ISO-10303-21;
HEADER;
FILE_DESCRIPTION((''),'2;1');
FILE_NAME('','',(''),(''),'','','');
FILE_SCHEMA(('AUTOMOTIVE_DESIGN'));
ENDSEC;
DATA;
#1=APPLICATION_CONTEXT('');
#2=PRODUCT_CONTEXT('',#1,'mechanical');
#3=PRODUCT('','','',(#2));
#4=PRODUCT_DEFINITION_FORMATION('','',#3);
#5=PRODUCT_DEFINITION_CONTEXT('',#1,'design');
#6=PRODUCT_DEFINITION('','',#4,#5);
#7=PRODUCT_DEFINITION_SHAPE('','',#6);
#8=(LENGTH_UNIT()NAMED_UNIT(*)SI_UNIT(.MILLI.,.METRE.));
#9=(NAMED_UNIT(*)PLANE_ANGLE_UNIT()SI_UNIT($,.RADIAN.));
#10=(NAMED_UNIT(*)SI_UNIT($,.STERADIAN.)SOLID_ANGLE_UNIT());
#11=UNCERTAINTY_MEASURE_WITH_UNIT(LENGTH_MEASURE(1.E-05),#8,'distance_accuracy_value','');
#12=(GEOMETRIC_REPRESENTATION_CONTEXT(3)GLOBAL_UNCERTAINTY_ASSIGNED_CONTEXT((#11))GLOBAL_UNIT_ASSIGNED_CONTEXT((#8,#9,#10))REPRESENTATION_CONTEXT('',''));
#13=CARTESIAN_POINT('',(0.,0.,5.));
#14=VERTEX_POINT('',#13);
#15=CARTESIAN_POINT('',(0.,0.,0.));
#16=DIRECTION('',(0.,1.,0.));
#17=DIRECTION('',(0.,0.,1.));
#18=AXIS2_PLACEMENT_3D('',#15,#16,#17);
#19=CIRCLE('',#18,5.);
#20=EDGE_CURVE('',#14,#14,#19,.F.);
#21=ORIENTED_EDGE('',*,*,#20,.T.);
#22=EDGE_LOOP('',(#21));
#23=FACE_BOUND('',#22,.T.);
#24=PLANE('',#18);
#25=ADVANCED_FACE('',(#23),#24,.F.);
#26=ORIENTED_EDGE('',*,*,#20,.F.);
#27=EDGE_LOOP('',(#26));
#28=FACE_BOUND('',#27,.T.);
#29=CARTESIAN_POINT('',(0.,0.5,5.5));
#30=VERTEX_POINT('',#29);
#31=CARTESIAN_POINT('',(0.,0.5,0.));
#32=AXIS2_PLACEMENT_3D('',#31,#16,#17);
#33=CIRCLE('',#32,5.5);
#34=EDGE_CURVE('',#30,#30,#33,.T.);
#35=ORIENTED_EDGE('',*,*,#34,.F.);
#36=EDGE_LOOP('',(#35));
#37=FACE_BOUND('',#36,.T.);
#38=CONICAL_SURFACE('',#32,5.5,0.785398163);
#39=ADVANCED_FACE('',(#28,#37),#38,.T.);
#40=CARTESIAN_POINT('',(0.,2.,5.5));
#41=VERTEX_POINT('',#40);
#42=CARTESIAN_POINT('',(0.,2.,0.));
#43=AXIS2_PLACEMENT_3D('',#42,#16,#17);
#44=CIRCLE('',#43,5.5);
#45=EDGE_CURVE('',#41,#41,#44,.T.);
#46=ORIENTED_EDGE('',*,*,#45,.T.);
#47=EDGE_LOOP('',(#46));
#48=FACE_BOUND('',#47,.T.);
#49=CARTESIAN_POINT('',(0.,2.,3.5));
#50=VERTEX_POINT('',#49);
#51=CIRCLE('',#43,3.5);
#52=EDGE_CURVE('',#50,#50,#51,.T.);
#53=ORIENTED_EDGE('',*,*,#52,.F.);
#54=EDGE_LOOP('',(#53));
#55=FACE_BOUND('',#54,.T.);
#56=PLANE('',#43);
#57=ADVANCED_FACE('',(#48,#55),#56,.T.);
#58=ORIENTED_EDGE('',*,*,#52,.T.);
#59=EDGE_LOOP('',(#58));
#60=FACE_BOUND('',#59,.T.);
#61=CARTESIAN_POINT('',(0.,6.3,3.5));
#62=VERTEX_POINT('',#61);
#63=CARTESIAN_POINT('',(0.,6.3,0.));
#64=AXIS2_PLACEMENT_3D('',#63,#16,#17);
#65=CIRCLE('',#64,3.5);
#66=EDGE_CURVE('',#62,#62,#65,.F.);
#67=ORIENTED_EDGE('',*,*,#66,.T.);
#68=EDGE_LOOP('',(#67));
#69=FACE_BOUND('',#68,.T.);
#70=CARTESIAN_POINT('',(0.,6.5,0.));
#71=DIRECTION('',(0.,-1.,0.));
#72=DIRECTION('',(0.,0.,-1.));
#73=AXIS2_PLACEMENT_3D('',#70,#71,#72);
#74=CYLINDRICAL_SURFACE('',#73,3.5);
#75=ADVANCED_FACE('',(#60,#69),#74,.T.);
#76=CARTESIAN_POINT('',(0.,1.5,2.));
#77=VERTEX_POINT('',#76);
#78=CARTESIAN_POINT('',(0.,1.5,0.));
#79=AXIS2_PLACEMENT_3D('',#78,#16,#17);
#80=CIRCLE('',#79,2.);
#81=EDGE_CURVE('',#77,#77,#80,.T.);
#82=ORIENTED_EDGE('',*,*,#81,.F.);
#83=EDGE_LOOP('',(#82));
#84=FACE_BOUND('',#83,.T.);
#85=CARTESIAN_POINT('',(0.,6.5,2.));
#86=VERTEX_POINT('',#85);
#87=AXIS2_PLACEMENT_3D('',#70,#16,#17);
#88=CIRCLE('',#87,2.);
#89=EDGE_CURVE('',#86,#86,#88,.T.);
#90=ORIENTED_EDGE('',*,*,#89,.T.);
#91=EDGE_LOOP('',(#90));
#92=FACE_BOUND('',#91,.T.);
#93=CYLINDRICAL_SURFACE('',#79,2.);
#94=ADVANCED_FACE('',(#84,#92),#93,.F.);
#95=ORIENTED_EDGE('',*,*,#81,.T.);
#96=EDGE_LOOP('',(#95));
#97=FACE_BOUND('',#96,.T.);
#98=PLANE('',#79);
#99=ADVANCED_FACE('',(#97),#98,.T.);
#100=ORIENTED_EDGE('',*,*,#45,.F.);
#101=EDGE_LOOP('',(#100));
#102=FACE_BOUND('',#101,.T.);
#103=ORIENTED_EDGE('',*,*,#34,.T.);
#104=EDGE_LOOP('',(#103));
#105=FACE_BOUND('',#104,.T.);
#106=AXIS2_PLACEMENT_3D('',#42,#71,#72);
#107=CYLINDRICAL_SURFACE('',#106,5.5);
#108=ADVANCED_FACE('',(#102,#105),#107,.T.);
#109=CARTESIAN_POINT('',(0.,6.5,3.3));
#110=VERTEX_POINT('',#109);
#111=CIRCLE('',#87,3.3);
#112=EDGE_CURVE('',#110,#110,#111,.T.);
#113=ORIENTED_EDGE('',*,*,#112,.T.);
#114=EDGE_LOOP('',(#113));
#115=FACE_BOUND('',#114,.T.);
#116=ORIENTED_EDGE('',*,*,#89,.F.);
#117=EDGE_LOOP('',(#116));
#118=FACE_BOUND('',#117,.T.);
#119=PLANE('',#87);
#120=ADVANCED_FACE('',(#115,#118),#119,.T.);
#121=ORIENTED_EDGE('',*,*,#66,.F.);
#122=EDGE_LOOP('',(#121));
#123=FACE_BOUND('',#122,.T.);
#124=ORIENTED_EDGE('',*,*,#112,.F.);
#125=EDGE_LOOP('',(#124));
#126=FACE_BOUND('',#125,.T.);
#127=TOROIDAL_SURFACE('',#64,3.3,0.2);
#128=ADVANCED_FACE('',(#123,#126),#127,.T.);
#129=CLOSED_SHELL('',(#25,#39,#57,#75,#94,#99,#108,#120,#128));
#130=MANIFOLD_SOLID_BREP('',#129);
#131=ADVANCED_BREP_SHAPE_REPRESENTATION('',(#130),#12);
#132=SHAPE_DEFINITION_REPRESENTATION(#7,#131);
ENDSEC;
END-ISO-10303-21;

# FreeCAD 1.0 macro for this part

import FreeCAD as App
import Part
import Sketcher


def edges_at(feature, points):
    """Names of the edges that pass closest to the given points."""
    edges = feature.Shape.Edges
    near = lambda p: min(range(len(edges)), key=lambda i: edges[i].distToShape(Part.Vertex(*p))[0])
    return sorted({f"Edge{near(p) + 1}" for p in points})

doc = App.newDocument("Part")
body = doc.addObject("PartDesign::Body", "Body")

sketch1 = body.newObject("Sketcher::SketchObject", "Sketch")
sketch1.AttachmentSupport = (doc.getObject("XZ_Plane"), [""])
sketch1.MapMode = "FlatFace"
sketch1.addGeometry(Part.Circle(App.Vector(0, 0, 0), App.Vector(0, 0, 1), 5.5), False)
sketch1.addConstraint(Sketcher.Constraint("Coincident", 0, 3, -1, 1))
sketch1.addConstraint(Sketcher.Constraint("Diameter", 0, 11.0))
pad1 = body.newObject("PartDesign::Pad", "Pad")
pad1.Profile = sketch1
pad1.Length = 2
pad1.Reversed = True

sketch2 = body.newObject("Sketcher::SketchObject", "Sketch001")
sketch2.AttachmentSupport = (doc.getObject("XZ_Plane"), [""])
sketch2.MapMode = "FlatFace"
sketch2.AttachmentOffset = App.Placement(App.Vector(0, 0, -2), App.Rotation())
sketch2.addGeometry(Part.Circle(App.Vector(0, 0, 0), App.Vector(0, 0, 1), 3.5), False)
sketch2.addConstraint(Sketcher.Constraint("Coincident", 0, 3, -1, 1))
sketch2.addConstraint(Sketcher.Constraint("Diameter", 0, 7.0))
pad2 = body.newObject("PartDesign::Pad", "Pad001")
pad2.Profile = sketch2
pad2.Length = 4.5
pad2.Reversed = True

sketch3 = body.newObject("Sketcher::SketchObject", "Sketch002")
sketch3.AttachmentSupport = (doc.getObject("XZ_Plane"), [""])
sketch3.MapMode = "FlatFace"
sketch3.AttachmentOffset = App.Placement(App.Vector(0, 0, -6.5), App.Rotation())
sketch3.addGeometry(Part.Circle(App.Vector(0, 0, 0), App.Vector(0, 0, 1), 2), False)
sketch3.addConstraint(Sketcher.Constraint("Coincident", 0, 3, -1, 1))
sketch3.addConstraint(Sketcher.Constraint("Diameter", 0, 4.0))
pocket1 = body.newObject("PartDesign::Pocket", "Pocket")
pocket1.Profile = sketch3
pocket1.Length = 5
pocket1.Reversed = True
doc.recompute()

chamfer = body.newObject("PartDesign::Chamfer", "Chamfer")
chamfer.Base = (pocket1, edges_at(pocket1, [(0, 0, -5.5)]))
chamfer.Size = 0.5
doc.recompute()

fillet = body.newObject("PartDesign::Fillet", "Fillet")
fillet.Base = (chamfer, edges_at(chamfer, [(0, 6.5, -3.5)]))
fillet.Radius = 0.2

doc.recompute()
